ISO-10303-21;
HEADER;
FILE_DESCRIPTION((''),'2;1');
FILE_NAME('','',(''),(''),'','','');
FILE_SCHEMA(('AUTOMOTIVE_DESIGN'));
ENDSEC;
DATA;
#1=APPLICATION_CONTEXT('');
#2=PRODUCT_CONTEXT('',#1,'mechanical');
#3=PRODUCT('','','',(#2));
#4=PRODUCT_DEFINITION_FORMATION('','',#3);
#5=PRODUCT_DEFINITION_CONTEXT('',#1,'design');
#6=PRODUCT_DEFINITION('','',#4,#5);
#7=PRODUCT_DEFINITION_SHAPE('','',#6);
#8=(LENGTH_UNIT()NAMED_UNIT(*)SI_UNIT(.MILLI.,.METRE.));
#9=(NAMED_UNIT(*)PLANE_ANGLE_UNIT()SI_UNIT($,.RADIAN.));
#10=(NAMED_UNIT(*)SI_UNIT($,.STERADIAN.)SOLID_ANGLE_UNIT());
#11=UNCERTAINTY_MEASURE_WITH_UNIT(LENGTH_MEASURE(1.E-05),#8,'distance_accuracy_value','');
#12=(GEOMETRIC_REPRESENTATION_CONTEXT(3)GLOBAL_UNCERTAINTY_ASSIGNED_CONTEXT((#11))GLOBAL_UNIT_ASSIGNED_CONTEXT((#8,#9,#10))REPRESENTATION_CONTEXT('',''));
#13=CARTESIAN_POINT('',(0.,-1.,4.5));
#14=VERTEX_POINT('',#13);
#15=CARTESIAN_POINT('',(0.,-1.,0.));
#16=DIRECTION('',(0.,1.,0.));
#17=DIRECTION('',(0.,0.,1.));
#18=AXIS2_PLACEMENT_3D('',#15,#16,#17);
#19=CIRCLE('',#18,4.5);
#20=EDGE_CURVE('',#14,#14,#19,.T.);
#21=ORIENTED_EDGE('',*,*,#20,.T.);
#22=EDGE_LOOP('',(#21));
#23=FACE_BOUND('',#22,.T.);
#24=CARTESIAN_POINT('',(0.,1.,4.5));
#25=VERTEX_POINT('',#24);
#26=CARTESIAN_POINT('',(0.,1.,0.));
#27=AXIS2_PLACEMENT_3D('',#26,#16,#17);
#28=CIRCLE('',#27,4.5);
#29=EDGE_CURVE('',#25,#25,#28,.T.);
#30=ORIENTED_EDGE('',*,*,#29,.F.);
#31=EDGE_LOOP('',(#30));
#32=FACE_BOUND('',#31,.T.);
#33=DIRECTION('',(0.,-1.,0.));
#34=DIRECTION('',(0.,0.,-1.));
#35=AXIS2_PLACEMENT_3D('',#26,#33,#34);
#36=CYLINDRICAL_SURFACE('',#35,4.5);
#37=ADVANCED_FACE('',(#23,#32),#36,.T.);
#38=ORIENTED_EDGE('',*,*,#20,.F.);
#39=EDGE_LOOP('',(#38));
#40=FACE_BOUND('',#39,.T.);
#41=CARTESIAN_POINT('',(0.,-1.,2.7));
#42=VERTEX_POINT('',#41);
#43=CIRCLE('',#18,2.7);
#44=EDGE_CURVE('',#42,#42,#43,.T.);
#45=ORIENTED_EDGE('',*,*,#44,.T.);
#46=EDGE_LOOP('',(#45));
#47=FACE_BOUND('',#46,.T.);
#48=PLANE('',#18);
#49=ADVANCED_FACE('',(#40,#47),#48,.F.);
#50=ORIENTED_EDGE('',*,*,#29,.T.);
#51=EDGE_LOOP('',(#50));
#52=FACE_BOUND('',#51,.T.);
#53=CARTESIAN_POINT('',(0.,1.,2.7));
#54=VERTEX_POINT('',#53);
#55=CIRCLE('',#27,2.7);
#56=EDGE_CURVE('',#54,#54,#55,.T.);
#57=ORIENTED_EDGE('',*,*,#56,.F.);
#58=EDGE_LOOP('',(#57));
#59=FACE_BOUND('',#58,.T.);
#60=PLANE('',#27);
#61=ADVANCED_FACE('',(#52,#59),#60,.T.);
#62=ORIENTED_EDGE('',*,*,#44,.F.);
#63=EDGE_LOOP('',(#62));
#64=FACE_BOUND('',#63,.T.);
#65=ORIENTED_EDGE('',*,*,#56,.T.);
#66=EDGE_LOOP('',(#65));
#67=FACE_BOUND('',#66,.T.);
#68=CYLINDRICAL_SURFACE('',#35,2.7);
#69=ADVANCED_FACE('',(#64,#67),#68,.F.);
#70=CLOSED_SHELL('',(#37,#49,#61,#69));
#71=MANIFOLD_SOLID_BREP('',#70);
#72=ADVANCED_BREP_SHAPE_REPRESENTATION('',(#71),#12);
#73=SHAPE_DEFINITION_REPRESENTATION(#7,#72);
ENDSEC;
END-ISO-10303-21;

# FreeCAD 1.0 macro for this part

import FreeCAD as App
import Part
import Sketcher

V = App.Vector
Q = App.Units.Quantity

doc = App.newDocument("Part")
body = doc.addObject("PartDesign::Body", "Body")

sketch1 = doc.addObject("Sketcher::SketchObject", "Sketch")
body.addObject(sketch1)
sketch1.AttachmentSupport = (doc.XZ_Plane, [""])
sketch1.MapMode = "FlatFace"
sketch1.addGeometry(Part.Circle(V(0, 0, 0), V(0, 0, 1), 4.5), False)
sketch1.addGeometry(Part.Circle(V(0, 0, 0), V(0, 0, 1), 2.7), False)
sketch1.addConstraint(Sketcher.Constraint("Coincident", 0, 3, -1, 1))
sketch1.addConstraint(Sketcher.Constraint("Coincident", 1, 3, -1, 1))
sketch1.addConstraint(Sketcher.Constraint("Diameter", 0, Q("9 mm")))
sketch1.addConstraint(Sketcher.Constraint("Diameter", 1, Q("5.4 mm")))
pad1 = doc.addObject("PartDesign::Pad", "Pad")
body.addObject(pad1)
pad1.Profile = sketch1
pad1.Length = 2
pad1.Midplane = True

doc.recompute()
